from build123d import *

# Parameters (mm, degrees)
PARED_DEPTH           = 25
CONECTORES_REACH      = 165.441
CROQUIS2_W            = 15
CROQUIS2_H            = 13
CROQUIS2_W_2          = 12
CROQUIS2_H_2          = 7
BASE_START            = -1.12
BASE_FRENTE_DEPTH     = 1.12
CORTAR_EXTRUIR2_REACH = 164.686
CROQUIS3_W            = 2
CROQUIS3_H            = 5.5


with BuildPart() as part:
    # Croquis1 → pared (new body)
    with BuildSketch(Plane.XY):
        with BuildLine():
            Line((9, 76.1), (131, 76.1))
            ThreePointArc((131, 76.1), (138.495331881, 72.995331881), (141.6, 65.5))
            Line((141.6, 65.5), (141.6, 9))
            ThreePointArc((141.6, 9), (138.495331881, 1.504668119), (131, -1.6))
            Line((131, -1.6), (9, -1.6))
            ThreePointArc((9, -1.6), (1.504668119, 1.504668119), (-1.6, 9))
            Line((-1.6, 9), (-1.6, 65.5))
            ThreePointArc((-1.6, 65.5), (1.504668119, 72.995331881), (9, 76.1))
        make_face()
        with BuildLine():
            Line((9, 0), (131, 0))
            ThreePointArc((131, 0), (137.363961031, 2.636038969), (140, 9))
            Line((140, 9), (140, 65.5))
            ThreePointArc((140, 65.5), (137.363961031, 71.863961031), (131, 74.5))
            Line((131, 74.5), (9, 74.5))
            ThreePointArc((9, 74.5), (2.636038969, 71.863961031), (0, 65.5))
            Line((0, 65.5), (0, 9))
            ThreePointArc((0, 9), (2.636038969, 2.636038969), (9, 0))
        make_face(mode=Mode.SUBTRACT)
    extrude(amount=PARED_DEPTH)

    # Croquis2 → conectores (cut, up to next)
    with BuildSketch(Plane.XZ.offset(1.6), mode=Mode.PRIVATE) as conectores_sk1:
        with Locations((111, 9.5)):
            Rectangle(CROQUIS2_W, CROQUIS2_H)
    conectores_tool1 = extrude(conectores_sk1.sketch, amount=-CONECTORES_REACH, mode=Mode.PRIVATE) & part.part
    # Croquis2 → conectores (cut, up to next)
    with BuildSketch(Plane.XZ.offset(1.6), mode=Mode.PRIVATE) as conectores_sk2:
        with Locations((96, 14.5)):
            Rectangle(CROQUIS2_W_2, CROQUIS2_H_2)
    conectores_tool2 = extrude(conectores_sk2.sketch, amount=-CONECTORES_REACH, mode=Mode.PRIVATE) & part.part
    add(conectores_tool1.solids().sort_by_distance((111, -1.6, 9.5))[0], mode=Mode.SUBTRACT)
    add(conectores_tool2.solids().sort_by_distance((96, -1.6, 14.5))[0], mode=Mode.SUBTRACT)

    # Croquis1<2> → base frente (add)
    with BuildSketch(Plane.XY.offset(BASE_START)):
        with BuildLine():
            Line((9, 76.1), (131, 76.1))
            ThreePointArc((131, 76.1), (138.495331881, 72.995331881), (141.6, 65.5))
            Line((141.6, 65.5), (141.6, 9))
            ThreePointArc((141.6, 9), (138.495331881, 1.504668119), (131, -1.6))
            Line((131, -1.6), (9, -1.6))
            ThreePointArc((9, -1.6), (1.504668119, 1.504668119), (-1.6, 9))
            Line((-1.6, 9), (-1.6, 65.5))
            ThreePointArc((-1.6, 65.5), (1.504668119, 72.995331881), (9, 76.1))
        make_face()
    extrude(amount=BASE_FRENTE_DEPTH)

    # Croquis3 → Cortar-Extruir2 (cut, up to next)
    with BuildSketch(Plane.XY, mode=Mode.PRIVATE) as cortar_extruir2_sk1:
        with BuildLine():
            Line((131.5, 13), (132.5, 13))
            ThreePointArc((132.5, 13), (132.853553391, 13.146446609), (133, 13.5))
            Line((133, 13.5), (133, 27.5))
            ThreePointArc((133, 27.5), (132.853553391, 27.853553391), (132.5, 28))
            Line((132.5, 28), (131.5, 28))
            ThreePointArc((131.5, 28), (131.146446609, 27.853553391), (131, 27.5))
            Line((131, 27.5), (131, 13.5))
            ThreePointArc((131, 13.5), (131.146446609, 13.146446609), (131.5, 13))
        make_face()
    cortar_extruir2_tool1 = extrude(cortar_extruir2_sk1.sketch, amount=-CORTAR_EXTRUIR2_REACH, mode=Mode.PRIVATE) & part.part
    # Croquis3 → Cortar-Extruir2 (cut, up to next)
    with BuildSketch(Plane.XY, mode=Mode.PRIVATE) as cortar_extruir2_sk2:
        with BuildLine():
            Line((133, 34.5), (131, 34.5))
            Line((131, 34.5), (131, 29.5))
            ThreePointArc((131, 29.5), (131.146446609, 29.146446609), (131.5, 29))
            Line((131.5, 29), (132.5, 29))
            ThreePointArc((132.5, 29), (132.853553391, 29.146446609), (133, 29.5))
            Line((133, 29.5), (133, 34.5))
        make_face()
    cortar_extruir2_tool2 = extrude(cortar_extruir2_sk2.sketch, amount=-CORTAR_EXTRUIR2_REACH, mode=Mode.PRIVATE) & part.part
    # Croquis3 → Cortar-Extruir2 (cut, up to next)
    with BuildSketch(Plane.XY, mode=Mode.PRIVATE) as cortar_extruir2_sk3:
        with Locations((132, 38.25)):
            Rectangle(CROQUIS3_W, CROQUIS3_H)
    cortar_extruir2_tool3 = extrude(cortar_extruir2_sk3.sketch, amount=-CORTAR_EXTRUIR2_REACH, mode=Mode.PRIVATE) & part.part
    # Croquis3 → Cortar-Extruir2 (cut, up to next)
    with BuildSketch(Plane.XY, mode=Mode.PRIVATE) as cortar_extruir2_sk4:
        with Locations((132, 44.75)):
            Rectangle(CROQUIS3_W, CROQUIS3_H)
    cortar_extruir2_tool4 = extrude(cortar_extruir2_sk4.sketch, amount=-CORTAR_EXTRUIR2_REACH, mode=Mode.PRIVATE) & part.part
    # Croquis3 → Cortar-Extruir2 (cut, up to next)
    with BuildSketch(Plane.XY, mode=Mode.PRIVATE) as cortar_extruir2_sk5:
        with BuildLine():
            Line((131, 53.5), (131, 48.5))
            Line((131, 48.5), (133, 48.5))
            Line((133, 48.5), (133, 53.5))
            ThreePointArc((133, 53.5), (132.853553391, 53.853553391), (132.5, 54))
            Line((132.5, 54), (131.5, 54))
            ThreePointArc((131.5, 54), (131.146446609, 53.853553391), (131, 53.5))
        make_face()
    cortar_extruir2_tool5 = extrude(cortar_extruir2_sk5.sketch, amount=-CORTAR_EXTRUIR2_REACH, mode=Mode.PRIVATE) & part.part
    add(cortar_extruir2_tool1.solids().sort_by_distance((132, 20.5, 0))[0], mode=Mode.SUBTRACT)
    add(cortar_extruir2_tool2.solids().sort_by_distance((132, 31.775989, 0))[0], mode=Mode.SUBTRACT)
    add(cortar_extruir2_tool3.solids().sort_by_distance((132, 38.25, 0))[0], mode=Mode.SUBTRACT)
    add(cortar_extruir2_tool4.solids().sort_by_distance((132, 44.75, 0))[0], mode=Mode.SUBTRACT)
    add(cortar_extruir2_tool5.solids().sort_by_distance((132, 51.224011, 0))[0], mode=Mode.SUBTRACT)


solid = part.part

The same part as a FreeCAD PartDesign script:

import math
import FreeCAD as App
import Part
import Sketcher
from FreeCAD import Vector
Q = App.Units.Quantity


def add_polygon(sketch, points):
    """Adds a closed chain of lines whose ends are joined by coincident constraints."""
    first, n = sketch.GeometryCount, len(points)
    for a, b in zip(points, points[1:] + points[:1]):
        sketch.addGeometry(Part.LineSegment(App.Vector(*a, 0), App.Vector(*b, 0)), False)
    for i in range(n):
        sketch.addConstraint(Sketcher.Constraint("Coincident", first + i, 2, first + (i + 1) % n, 1))

doc = App.newDocument("Part")
body = doc.addObject("PartDesign::Body", "Body")

# Sketch on XY plane
sketch1 = doc.addObject("Sketcher::SketchObject", "Sketch")
body.addObject(sketch1)
sketch1.AttachmentSupport = (doc.XY_Plane, [""])
sketch1.MapMode = "FlatFace"
sketch1.addGeometry([
    Part.LineSegment(Vector(131, 76, 0), Vector(9, 76, 0)),  # 0
    Part.ArcOfCircle(Part.Circle(Vector(9, 66, 0), Vector(0, 0, 1), 11), math.radians(90), math.radians(180)),  # 1
    Part.LineSegment(Vector(-2, 66, 0), Vector(-2, 9, 0)),  # 2
    Part.ArcOfCircle(Part.Circle(Vector(9, 9, 0), Vector(0, 0, 1), 11), math.radians(180), math.radians(270)),  # 3
    Part.LineSegment(Vector(9, -2, 0), Vector(131, -2, 0)),  # 4
    Part.ArcOfCircle(Part.Circle(Vector(131, 9, 0), Vector(0, 0, 1), 11), math.radians(-90), math.radians(0)),  # 5
    Part.LineSegment(Vector(142, 9, 0), Vector(142, 66, 0)),  # 6
    Part.ArcOfCircle(Part.Circle(Vector(131, 66, 0), Vector(0, 0, 1), 11), math.radians(0), math.radians(90)),  # 7
    Part.ArcOfCircle(Part.Circle(Vector(9, 9, 0), Vector(0, 0, 1), 9), math.radians(180), math.radians(270)),  # 8
    Part.LineSegment(Vector(0, 9, 0), Vector(0, 66, 0)),  # 9
    Part.ArcOfCircle(Part.Circle(Vector(9, 66, 0), Vector(0, 0, 1), 9), math.radians(90), math.radians(180)),  # 10
    Part.LineSegment(Vector(9, 74, 0), Vector(131, 74, 0)),  # 11
    Part.ArcOfCircle(Part.Circle(Vector(131, 66, 0), Vector(0, 0, 1), 9), math.radians(0), math.radians(90)),  # 12
    Part.LineSegment(Vector(140, 66, 0), Vector(140, 9, 0)),  # 13
    Part.ArcOfCircle(Part.Circle(Vector(131, 9, 0), Vector(0, 0, 1), 9), math.radians(-90), math.radians(0)),  # 14
    Part.LineSegment(Vector(131, 0, 0), Vector(9, 0, 0)),  # 15
], False)
sketch1.addConstraint([
    Sketcher.Constraint("Tangent", 0, 2, 1, 1),
    Sketcher.Constraint("Tangent", 1, 2, 2, 1),
    Sketcher.Constraint("Tangent", 2, 2, 3, 1),
    Sketcher.Constraint("Tangent", 3, 2, 4, 1),
    Sketcher.Constraint("Tangent", 4, 2, 5, 1),
    Sketcher.Constraint("Tangent", 5, 2, 6, 1),
    Sketcher.Constraint("Tangent", 6, 2, 7, 1),
    Sketcher.Constraint("Tangent", 7, 2, 0, 1),
    Sketcher.Constraint("Tangent", 8, 1, 9, 1),
    Sketcher.Constraint("Tangent", 9, 2, 10, 2),
    Sketcher.Constraint("Tangent", 10, 1, 11, 1),
    Sketcher.Constraint("Tangent", 11, 2, 12, 2),
    Sketcher.Constraint("Tangent", 12, 1, 13, 1),
    Sketcher.Constraint("Tangent", 13, 2, 14, 2),
    Sketcher.Constraint("Tangent", 14, 1, 15, 1),
    Sketcher.Constraint("Tangent", 15, 2, 8, 2),
    Sketcher.Constraint("Horizontal", 0),
    Sketcher.Constraint("Vertical", 2),
    Sketcher.Constraint("Horizontal", 4),
    Sketcher.Constraint("Vertical", 6),
    Sketcher.Constraint("Vertical", 9),
    Sketcher.Constraint("Horizontal", 11),
    Sketcher.Constraint("Vertical", 13),
    Sketcher.Constraint("Horizontal", 15),
    Sketcher.Constraint("Coincident", 8, 3, 3, 3),
    Sketcher.Constraint("Coincident", 10, 3, 1, 3),
    Sketcher.Constraint("Coincident", 12, 3, 7, 3),
    Sketcher.Constraint("Equal", 1, 3),
    Sketcher.Constraint("Equal", 3, 5),
    Sketcher.Constraint("Equal", 5, 7),
    Sketcher.Constraint("Equal", 12, 14),
    Sketcher.Constraint("PointOnObject", 8, 1, -2),
    Sketcher.Constraint("PointOnObject", 14, 1, -1),
    Sketcher.Constraint("Radius", 8, Q("9 mm")),
    Sketcher.Constraint("Radius", 1, Q("10.6 mm")),
    Sketcher.Constraint("DistanceX", 0, 2, 0, 1, Q("122 mm")),
    Sketcher.Constraint("DistanceY", 2, 2, 2, 1, Q("56.5 mm")),
])
pad1 = doc.addObject("PartDesign::Pad", "Pad")
body.addObject(pad1)
pad1.Profile = sketch1
pad1.Length = 25

# Sketch on XZ plane
sketch2 = doc.addObject("Sketcher::SketchObject", "Sketch001")
body.addObject(sketch2)
sketch2.AttachmentSupport = (doc.XZ_Plane, [""])
sketch2.MapMode = "FlatFace"
sketch2.AttachmentOffset = App.Placement(Vector(0, 0, 1.6), App.Rotation())
add_polygon(sketch2, [(104, 16), (104, 3), (118, 3), (118, 16)])  # lines 0-3
sketch2.addConstraint([
    Sketcher.Constraint("Vertical", 0),
    Sketcher.Constraint("Horizontal", 1),
    Sketcher.Constraint("Vertical", 2),
    Sketcher.Constraint("Horizontal", 3),
    Sketcher.Constraint("DistanceX", 1, 1, 1, 2, Q("15 mm")),
    Sketcher.Constraint("DistanceY", 0, 2, 0, 1, Q("13 mm")),
    Sketcher.Constraint("DistanceY", -1, 1, 0, 2, Q("3 mm")),
    Sketcher.Constraint("DistanceX", -1, 1, 0, 2, Q("103.5 mm")),
])
pocket1 = doc.addObject("PartDesign::Pocket", "Pocket")
body.addObject(pocket1)
pocket1.Profile = sketch2
pocket1.Type = "UpToFirst"

# Sketch on XZ plane
sketch3 = doc.addObject("Sketcher::SketchObject", "Sketch002")
body.addObject(sketch3)
sketch3.AttachmentSupport = (doc.XZ_Plane, [""])
sketch3.MapMode = "FlatFace"
sketch3.AttachmentOffset = App.Placement(Vector(0, 0, 1.6), App.Rotation())
add_polygon(sketch3, [(90, 18), (90, 11), (102, 11), (102, 18)])  # lines 0-3
sketch3.addConstraint([
    Sketcher.Constraint("Vertical", 0),
    Sketcher.Constraint("Horizontal", 1),
    Sketcher.Constraint("Vertical", 2),
    Sketcher.Constraint("Horizontal", 3),
    Sketcher.Constraint("DistanceX", 1, 1, 1, 2, Q("12 mm")),
    Sketcher.Constraint("DistanceY", 0, 2, 0, 1, Q("7 mm")),
    Sketcher.Constraint("DistanceX", -1, 1, 0, 2, Q("90 mm")),
    Sketcher.Constraint("DistanceY", -1, 1, 0, 2, Q("11 mm")),
])
pocket2 = doc.addObject("PartDesign::Pocket", "Pocket001")
body.addObject(pocket2)
pocket2.Profile = sketch3
pocket2.Type = "UpToFirst"

# Sketch on XY plane
sketch4 = doc.addObject("Sketcher::SketchObject", "Sketch003")
body.addObject(sketch4)
sketch4.AttachmentSupport = (doc.XY_Plane, [""])
sketch4.MapMode = "FlatFace"
sketch4.AttachmentOffset = App.Placement(Vector(0, 0, -1.12), App.Rotation())
sketch4.addGeometry([
    Part.LineSegment(Vector(131, 76, 0), Vector(9, 76, 0)),  # 0
    Part.ArcOfCircle(Part.Circle(Vector(9, 66, 0), Vector(0, 0, 1), 11), math.radians(90), math.radians(180)),  # 1
    Part.LineSegment(Vector(-2, 66, 0), Vector(-2, 9, 0)),  # 2
    Part.ArcOfCircle(Part.Circle(Vector(9, 9, 0), Vector(0, 0, 1), 11), math.radians(180), math.radians(270)),  # 3
    Part.LineSegment(Vector(9, -2, 0), Vector(131, -2, 0)),  # 4
    Part.ArcOfCircle(Part.Circle(Vector(131, 9, 0), Vector(0, 0, 1), 11), math.radians(-90), math.radians(0)),  # 5
    Part.LineSegment(Vector(142, 9, 0), Vector(142, 66, 0)),  # 6
    Part.ArcOfCircle(Part.Circle(Vector(131, 66, 0), Vector(0, 0, 1), 11), math.radians(0), math.radians(90)),  # 7
], False)
sketch4.addConstraint([
    Sketcher.Constraint("Tangent", 0, 2, 1, 1),
    Sketcher.Constraint("Tangent", 1, 2, 2, 1),
    Sketcher.Constraint("Tangent", 2, 2, 3, 1),
    Sketcher.Constraint("Tangent", 3, 2, 4, 1),
    Sketcher.Constraint("Tangent", 4, 2, 5, 1),
    Sketcher.Constraint("Tangent", 5, 2, 6, 1),
    Sketcher.Constraint("Tangent", 6, 2, 7, 1),
    Sketcher.Constraint("Tangent", 7, 2, 0, 1),
    Sketcher.Constraint("Horizontal", 0),
    Sketcher.Constraint("Vertical", 2),
    Sketcher.Constraint("Horizontal", 4),
    Sketcher.Constraint("Vertical", 6),
    Sketcher.Constraint("Equal", 1, 3),
    Sketcher.Constraint("Equal", 3, 5),
    Sketcher.Constraint("Equal", 5, 7),
    Sketcher.Constraint("Radius", 1, Q("10.6 mm")),
    Sketcher.Constraint("DistanceX", 0, 2, 0, 1, Q("122 mm")),
    Sketcher.Constraint("DistanceY", 2, 2, 2, 1, Q("56.5 mm")),
    Sketcher.Constraint("DistanceX", -1, 1, 1, 3, Q("9 mm")),
    Sketcher.Constraint("DistanceY", -1, 1, 3, 3, Q("9 mm")),
])
pad2 = doc.addObject("PartDesign::Pad", "Pad001")
body.addObject(pad2)
pad2.Profile = sketch4
pad2.Length = 1.12

# Sketch on XY plane
sketch5 = doc.addObject("Sketcher::SketchObject", "Sketch004")
body.addObject(sketch5)
sketch5.AttachmentSupport = (doc.XY_Plane, [""])
sketch5.MapMode = "FlatFace"
sketch5.addGeometry([
    Part.LineSegment(Vector(131.5, 13, 0), Vector(132.5, 13, 0)),  # 0
    Part.ArcOfCircle(Part.Circle(Vector(132.5, 13.5, 0), Vector(0, 0, 1), 0.5), math.radians(-90), math.radians(0)),  # 1
    Part.LineSegment(Vector(133, 13.5, 0), Vector(133, 27.5, 0)),  # 2
    Part.ArcOfCircle(Part.Circle(Vector(132.5, 27.5, 0), Vector(0, 0, 1), 0.5), math.radians(0), math.radians(90)),  # 3
    Part.LineSegment(Vector(132.5, 28, 0), Vector(131.5, 28, 0)),  # 4
    Part.ArcOfCircle(Part.Circle(Vector(131.5, 27.5, 0), Vector(0, 0, 1), 0.5), math.radians(90), math.radians(180)),  # 5
    Part.LineSegment(Vector(131, 27.5, 0), Vector(131, 13.5, 0)),  # 6
    Part.ArcOfCircle(Part.Circle(Vector(131.5, 13.5, 0), Vector(0, 0, 1), 0.5), math.radians(180), math.radians(270)),  # 7
], False)
sketch5.addConstraint([
    Sketcher.Constraint("Tangent", 0, 2, 1, 1),
    Sketcher.Constraint("Tangent", 1, 2, 2, 1),
    Sketcher.Constraint("Tangent", 2, 2, 3, 1),
    Sketcher.Constraint("Tangent", 3, 2, 4, 1),
    Sketcher.Constraint("Tangent", 4, 2, 5, 1),
    Sketcher.Constraint("Tangent", 5, 2, 6, 1),
    Sketcher.Constraint("Tangent", 6, 2, 7, 1),
    Sketcher.Constraint("Tangent", 7, 2, 0, 1),
    Sketcher.Constraint("Horizontal", 0),
    Sketcher.Constraint("Vertical", 2),
    Sketcher.Constraint("Horizontal", 4),
    Sketcher.Constraint("Vertical", 6),
    Sketcher.Constraint("Equal", 1, 3),
    Sketcher.Constraint("Equal", 3, 5),
    Sketcher.Constraint("Equal", 5, 7),
    Sketcher.Constraint("Radius", 1, Q("0.5 mm")),
    Sketcher.Constraint("DistanceX", 0, 1, 0, 2, Q("1 mm")),
    Sketcher.Constraint("DistanceY", 2, 1, 2, 2, Q("14 mm")),
    Sketcher.Constraint("DistanceY", -1, 1, 0, 2, Q("13 mm")),
    Sketcher.Constraint("DistanceX", -1, 1, 1, 2, Q("133 mm")),
])
pocket3 = doc.addObject("PartDesign::Pocket", "Pocket002")
body.addObject(pocket3)
pocket3.Profile = sketch5
pocket3.Type = "UpToFirst"

# Sketch on XY plane
sketch6 = doc.addObject("Sketcher::SketchObject", "Sketch005")
body.addObject(sketch6)
sketch6.AttachmentSupport = (doc.XY_Plane, [""])
sketch6.MapMode = "FlatFace"
sketch6.addGeometry([
    Part.LineSegment(Vector(133, 34.5, 0), Vector(131, 34.5, 0)),  # 0
    Part.LineSegment(Vector(131, 34.5, 0), Vector(131, 29.5, 0)),  # 1
    Part.ArcOfCircle(Part.Circle(Vector(131.5, 29.5, 0), Vector(0, 0, 1), 0.5), math.radians(180), math.radians(270)),  # 2
    Part.LineSegment(Vector(131.5, 29, 0), Vector(132.5, 29, 0)),  # 3
    Part.ArcOfCircle(Part.Circle(Vector(132.5, 29.5, 0), Vector(0, 0, 1), 0.5), math.radians(-90), math.radians(0)),  # 4
    Part.LineSegment(Vector(133, 29.5, 0), Vector(133, 34.5, 0)),  # 5
], False)
sketch6.addConstraint([
    Sketcher.Constraint("Coincident", 0, 2, 1, 1),
    Sketcher.Constraint("Tangent", 1, 2, 2, 1),
    Sketcher.Constraint("Tangent", 2, 2, 3, 1),
    Sketcher.Constraint("Tangent", 3, 2, 4, 1),
    Sketcher.Constraint("Tangent", 4, 2, 5, 1),
    Sketcher.Constraint("Coincident", 5, 2, 0, 1),
    Sketcher.Constraint("Horizontal", 0),
    Sketcher.Constraint("Vertical", 1),
    Sketcher.Constraint("Horizontal", 3),
    Sketcher.Constraint("Vertical", 5),
    Sketcher.Constraint("Equal", 2, 4),
    Sketcher.Constraint("Radius", 2, Q("0.5 mm")),
    Sketcher.Constraint("DistanceX", 0, 2, 0, 1, Q("2 mm")),
    Sketcher.Constraint("DistanceY", 1, 2, 1, 1, Q("5 mm")),
    Sketcher.Constraint("DistanceX", -1, 1, 0, 2, Q("131 mm")),
    Sketcher.Constraint("DistanceY", -1, 1, 2, 2, Q("29 mm")),
])
pocket4 = doc.addObject("PartDesign::Pocket", "Pocket003")
body.addObject(pocket4)
pocket4.Profile = sketch6
pocket4.Type = "UpToFirst"

# Sketch on XY plane
sketch7 = doc.addObject("Sketcher::SketchObject", "Sketch006")
body.addObject(sketch7)
sketch7.AttachmentSupport = (doc.XY_Plane, [""])
sketch7.MapMode = "FlatFace"
add_polygon(sketch7, [(131, 41), (131, 35.5), (133, 35.5), (133, 41)])  # lines 0-3
sketch7.addConstraint([
    Sketcher.Constraint("Vertical", 0),
    Sketcher.Constraint("Horizontal", 1),
    Sketcher.Constraint("Vertical", 2),
    Sketcher.Constraint("Horizontal", 3),
    Sketcher.Constraint("DistanceX", 1, 1, 1, 2, Q("2 mm")),
    Sketcher.Constraint("DistanceY", 0, 2, 0, 1, Q("5.5 mm")),
    Sketcher.Constraint("DistanceX", -1, 1, 0, 2, Q("131 mm")),
    Sketcher.Constraint("DistanceY", -1, 1, 2, 2, Q("41 mm")),
])
pocket5 = doc.addObject("PartDesign::Pocket", "Pocket004")
body.addObject(pocket5)
pocket5.Profile = sketch7
pocket5.Type = "UpToFirst"

# Sketch on XY plane
sketch8 = doc.addObject("Sketcher::SketchObject", "Sketch007")
body.addObject(sketch8)
sketch8.AttachmentSupport = (doc.XY_Plane, [""])
sketch8.MapMode = "FlatFace"
add_polygon(sketch8, [(131, 47.5), (131, 42), (133, 42), (133, 47.5)])  # lines 0-3
sketch8.addConstraint([
    Sketcher.Constraint("Vertical", 0),
    Sketcher.Constraint("Horizontal", 1),
    Sketcher.Constraint("Vertical", 2),
    Sketcher.Constraint("Horizontal", 3),
    Sketcher.Constraint("DistanceX", 1, 1, 1, 2, Q("2 mm")),
    Sketcher.Constraint("DistanceY", 0, 2, 0, 1, Q("5.5 mm")),
    Sketcher.Constraint("DistanceX", -1, 1, 0, 2, Q("131 mm")),
    Sketcher.Constraint("DistanceY", -1, 1, 0, 2, Q("42 mm")),
])
pocket6 = doc.addObject("PartDesign::Pocket", "Pocket005")
body.addObject(pocket6)
pocket6.Profile = sketch8
pocket6.Type = "UpToFirst"

# Sketch on XY plane
sketch9 = doc.addObject("Sketcher::SketchObject", "Sketch008")
body.addObject(sketch9)
sketch9.AttachmentSupport = (doc.XY_Plane, [""])
sketch9.MapMode = "FlatFace"
sketch9.addGeometry([
    Part.LineSegment(Vector(131, 53.5, 0), Vector(131, 48.5, 0)),  # 0
    Part.LineSegment(Vector(131, 48.5, 0), Vector(133, 48.5, 0)),  # 1
    Part.LineSegment(Vector(133, 48.5, 0), Vector(133, 53.5, 0)),  # 2
    Part.ArcOfCircle(Part.Circle(Vector(132.5, 53.5, 0), Vector(0, 0, 1), 0.5), math.radians(0), math.radians(90)),  # 3
    Part.LineSegment(Vector(132.5, 54, 0), Vector(131.5, 54, 0)),  # 4
    Part.ArcOfCircle(Part.Circle(Vector(131.5, 53.5, 0), Vector(0, 0, 1), 0.5), math.radians(90), math.radians(180)),  # 5
], False)
sketch9.addConstraint([
    Sketcher.Constraint("Coincident", 0, 2, 1, 1),
    Sketcher.Constraint("Coincident", 1, 2, 2, 1),
    Sketcher.Constraint("Tangent", 2, 2, 3, 1),
    Sketcher.Constraint("Tangent", 3, 2, 4, 1),
    Sketcher.Constraint("Tangent", 4, 2, 5, 1),
    Sketcher.Constraint("Tangent", 5, 2, 0, 1),
    Sketcher.Constraint("Vertical", 0),
    Sketcher.Constraint("Horizontal", 1),
    Sketcher.Constraint("Vertical", 2),
    Sketcher.Constraint("Horizontal", 4),
    Sketcher.Constraint("Equal", 3, 5),
    Sketcher.Constraint("Radius", 3, Q("0.5 mm")),
    Sketcher.Constraint("DistanceX", 1, 1, 1, 2, Q("2 mm")),
    Sketcher.Constraint("DistanceY", 0, 2, 0, 1, Q("5 mm")),
    Sketcher.Constraint("DistanceX", -1, 1, 0, 2, Q("131 mm")),
    Sketcher.Constraint("DistanceY", -1, 1, 3, 2, Q("54 mm")),
])
pocket7 = doc.addObject("PartDesign::Pocket", "Pocket006")
body.addObject(pocket7)
pocket7.Profile = sketch9
pocket7.Type = "UpToFirst"

doc.recompute()
